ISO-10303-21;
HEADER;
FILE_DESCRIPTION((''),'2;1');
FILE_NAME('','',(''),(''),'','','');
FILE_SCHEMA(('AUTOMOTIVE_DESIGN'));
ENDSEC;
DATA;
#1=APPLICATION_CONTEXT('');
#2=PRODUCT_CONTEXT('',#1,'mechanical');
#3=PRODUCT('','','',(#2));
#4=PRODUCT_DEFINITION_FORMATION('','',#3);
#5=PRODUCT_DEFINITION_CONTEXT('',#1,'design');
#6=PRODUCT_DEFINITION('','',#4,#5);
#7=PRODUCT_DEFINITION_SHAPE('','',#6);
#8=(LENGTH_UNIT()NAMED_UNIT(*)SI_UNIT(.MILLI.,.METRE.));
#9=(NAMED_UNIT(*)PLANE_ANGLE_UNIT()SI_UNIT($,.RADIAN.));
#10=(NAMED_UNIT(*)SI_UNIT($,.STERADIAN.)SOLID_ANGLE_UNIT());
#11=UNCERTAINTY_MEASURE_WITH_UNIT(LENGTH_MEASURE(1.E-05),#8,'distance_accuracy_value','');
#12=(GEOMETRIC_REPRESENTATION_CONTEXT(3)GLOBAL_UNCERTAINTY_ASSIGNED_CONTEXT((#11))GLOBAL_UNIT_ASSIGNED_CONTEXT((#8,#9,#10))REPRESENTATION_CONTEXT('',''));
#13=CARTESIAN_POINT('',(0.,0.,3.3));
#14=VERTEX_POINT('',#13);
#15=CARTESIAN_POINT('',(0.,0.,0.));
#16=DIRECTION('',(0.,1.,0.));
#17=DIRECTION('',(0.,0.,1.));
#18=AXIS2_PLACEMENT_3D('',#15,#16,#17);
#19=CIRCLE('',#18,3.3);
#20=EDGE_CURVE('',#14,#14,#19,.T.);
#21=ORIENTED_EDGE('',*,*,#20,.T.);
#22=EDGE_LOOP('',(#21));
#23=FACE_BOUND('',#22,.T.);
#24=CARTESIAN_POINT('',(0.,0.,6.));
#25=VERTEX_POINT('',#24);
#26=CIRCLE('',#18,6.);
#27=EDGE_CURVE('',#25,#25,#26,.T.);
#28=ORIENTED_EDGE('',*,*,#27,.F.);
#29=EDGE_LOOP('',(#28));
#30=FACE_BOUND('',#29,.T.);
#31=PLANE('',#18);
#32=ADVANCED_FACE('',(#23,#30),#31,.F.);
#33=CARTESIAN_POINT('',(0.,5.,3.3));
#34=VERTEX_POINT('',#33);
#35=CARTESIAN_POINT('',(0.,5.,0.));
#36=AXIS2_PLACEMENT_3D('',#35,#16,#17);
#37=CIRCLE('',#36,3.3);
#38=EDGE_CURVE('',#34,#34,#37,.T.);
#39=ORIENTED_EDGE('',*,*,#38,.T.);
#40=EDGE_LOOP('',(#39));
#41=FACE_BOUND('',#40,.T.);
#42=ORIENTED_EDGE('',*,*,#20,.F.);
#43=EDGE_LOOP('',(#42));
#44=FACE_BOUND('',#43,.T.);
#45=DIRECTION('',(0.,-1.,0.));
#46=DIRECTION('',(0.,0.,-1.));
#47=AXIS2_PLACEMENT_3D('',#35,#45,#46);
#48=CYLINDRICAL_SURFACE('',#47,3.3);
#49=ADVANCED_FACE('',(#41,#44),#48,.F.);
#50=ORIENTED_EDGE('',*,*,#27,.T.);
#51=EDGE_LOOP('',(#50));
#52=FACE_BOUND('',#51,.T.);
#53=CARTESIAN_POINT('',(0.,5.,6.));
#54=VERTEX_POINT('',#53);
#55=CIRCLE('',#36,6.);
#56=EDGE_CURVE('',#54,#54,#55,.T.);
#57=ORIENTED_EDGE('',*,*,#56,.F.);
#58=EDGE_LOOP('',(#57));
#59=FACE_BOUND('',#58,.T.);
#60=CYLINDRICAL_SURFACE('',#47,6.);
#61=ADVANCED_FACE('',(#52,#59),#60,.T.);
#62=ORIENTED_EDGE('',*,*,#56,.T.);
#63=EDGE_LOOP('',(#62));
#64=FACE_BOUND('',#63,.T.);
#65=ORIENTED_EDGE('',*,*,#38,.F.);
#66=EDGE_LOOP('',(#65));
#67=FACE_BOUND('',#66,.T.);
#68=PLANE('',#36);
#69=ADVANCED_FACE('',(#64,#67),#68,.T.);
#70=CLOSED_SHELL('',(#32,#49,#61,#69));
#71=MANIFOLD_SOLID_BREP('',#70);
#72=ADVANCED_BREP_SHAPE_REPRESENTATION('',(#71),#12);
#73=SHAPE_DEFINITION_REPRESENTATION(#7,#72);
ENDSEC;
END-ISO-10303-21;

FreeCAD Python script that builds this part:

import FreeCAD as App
import Part
import Sketcher

V = App.Vector
Q = App.Units.Quantity

doc = App.newDocument("Part")
params = doc.addObject("Spreadsheet::Sheet", "Params")
for row, (alias, value) in enumerate([
    ("sketch1_diameter", "12 mm"),
    ("sketch1_diameter2", "6.6 mm"),
    ("pad1_length", "5 mm"),
], start=1):
    params.set(f"A{row}", alias)
    params.set(f"B{row}", "=" + value)
    params.setAlias(f"B{row}", alias)

body = doc.addObject("PartDesign::Body", "Body")

# Sketch on XZ plane
sketch1 = doc.addObject("Sketcher::SketchObject", "Sketch")
body.addObject(sketch1)
sketch1.AttachmentSupport = (doc.XZ_Plane, [""])
sketch1.MapMode = "FlatFace"
sketch1.addGeometry(Part.Circle(V(0, 0, 0), V(0, 0, 1), 6), False)
sketch1.addGeometry(Part.Circle(V(0, 0, 0), V(0, 0, 1), 3.3), False)
sketch1.addConstraint(Sketcher.Constraint("Coincident", 0, 3, -1, 1))
sketch1.addConstraint(Sketcher.Constraint("Coincident", 1, 3, -1, 1))
sketch1.addConstraint(Sketcher.Constraint("Diameter", 0, Q("12 mm")))
sketch1.addConstraint(Sketcher.Constraint("Diameter", 1, Q("6.6 mm")))
sketch1.setExpression("Constraints[2]", "Params.sketch1_diameter")
sketch1.setExpression("Constraints[3]", "Params.sketch1_diameter2")
pad1 = doc.addObject("PartDesign::Pad", "Pad")
body.addObject(pad1)
pad1.Profile = sketch1
pad1.setExpression("Length", "Params.pad1_length")
pad1.Reversed = True

doc.recompute()
